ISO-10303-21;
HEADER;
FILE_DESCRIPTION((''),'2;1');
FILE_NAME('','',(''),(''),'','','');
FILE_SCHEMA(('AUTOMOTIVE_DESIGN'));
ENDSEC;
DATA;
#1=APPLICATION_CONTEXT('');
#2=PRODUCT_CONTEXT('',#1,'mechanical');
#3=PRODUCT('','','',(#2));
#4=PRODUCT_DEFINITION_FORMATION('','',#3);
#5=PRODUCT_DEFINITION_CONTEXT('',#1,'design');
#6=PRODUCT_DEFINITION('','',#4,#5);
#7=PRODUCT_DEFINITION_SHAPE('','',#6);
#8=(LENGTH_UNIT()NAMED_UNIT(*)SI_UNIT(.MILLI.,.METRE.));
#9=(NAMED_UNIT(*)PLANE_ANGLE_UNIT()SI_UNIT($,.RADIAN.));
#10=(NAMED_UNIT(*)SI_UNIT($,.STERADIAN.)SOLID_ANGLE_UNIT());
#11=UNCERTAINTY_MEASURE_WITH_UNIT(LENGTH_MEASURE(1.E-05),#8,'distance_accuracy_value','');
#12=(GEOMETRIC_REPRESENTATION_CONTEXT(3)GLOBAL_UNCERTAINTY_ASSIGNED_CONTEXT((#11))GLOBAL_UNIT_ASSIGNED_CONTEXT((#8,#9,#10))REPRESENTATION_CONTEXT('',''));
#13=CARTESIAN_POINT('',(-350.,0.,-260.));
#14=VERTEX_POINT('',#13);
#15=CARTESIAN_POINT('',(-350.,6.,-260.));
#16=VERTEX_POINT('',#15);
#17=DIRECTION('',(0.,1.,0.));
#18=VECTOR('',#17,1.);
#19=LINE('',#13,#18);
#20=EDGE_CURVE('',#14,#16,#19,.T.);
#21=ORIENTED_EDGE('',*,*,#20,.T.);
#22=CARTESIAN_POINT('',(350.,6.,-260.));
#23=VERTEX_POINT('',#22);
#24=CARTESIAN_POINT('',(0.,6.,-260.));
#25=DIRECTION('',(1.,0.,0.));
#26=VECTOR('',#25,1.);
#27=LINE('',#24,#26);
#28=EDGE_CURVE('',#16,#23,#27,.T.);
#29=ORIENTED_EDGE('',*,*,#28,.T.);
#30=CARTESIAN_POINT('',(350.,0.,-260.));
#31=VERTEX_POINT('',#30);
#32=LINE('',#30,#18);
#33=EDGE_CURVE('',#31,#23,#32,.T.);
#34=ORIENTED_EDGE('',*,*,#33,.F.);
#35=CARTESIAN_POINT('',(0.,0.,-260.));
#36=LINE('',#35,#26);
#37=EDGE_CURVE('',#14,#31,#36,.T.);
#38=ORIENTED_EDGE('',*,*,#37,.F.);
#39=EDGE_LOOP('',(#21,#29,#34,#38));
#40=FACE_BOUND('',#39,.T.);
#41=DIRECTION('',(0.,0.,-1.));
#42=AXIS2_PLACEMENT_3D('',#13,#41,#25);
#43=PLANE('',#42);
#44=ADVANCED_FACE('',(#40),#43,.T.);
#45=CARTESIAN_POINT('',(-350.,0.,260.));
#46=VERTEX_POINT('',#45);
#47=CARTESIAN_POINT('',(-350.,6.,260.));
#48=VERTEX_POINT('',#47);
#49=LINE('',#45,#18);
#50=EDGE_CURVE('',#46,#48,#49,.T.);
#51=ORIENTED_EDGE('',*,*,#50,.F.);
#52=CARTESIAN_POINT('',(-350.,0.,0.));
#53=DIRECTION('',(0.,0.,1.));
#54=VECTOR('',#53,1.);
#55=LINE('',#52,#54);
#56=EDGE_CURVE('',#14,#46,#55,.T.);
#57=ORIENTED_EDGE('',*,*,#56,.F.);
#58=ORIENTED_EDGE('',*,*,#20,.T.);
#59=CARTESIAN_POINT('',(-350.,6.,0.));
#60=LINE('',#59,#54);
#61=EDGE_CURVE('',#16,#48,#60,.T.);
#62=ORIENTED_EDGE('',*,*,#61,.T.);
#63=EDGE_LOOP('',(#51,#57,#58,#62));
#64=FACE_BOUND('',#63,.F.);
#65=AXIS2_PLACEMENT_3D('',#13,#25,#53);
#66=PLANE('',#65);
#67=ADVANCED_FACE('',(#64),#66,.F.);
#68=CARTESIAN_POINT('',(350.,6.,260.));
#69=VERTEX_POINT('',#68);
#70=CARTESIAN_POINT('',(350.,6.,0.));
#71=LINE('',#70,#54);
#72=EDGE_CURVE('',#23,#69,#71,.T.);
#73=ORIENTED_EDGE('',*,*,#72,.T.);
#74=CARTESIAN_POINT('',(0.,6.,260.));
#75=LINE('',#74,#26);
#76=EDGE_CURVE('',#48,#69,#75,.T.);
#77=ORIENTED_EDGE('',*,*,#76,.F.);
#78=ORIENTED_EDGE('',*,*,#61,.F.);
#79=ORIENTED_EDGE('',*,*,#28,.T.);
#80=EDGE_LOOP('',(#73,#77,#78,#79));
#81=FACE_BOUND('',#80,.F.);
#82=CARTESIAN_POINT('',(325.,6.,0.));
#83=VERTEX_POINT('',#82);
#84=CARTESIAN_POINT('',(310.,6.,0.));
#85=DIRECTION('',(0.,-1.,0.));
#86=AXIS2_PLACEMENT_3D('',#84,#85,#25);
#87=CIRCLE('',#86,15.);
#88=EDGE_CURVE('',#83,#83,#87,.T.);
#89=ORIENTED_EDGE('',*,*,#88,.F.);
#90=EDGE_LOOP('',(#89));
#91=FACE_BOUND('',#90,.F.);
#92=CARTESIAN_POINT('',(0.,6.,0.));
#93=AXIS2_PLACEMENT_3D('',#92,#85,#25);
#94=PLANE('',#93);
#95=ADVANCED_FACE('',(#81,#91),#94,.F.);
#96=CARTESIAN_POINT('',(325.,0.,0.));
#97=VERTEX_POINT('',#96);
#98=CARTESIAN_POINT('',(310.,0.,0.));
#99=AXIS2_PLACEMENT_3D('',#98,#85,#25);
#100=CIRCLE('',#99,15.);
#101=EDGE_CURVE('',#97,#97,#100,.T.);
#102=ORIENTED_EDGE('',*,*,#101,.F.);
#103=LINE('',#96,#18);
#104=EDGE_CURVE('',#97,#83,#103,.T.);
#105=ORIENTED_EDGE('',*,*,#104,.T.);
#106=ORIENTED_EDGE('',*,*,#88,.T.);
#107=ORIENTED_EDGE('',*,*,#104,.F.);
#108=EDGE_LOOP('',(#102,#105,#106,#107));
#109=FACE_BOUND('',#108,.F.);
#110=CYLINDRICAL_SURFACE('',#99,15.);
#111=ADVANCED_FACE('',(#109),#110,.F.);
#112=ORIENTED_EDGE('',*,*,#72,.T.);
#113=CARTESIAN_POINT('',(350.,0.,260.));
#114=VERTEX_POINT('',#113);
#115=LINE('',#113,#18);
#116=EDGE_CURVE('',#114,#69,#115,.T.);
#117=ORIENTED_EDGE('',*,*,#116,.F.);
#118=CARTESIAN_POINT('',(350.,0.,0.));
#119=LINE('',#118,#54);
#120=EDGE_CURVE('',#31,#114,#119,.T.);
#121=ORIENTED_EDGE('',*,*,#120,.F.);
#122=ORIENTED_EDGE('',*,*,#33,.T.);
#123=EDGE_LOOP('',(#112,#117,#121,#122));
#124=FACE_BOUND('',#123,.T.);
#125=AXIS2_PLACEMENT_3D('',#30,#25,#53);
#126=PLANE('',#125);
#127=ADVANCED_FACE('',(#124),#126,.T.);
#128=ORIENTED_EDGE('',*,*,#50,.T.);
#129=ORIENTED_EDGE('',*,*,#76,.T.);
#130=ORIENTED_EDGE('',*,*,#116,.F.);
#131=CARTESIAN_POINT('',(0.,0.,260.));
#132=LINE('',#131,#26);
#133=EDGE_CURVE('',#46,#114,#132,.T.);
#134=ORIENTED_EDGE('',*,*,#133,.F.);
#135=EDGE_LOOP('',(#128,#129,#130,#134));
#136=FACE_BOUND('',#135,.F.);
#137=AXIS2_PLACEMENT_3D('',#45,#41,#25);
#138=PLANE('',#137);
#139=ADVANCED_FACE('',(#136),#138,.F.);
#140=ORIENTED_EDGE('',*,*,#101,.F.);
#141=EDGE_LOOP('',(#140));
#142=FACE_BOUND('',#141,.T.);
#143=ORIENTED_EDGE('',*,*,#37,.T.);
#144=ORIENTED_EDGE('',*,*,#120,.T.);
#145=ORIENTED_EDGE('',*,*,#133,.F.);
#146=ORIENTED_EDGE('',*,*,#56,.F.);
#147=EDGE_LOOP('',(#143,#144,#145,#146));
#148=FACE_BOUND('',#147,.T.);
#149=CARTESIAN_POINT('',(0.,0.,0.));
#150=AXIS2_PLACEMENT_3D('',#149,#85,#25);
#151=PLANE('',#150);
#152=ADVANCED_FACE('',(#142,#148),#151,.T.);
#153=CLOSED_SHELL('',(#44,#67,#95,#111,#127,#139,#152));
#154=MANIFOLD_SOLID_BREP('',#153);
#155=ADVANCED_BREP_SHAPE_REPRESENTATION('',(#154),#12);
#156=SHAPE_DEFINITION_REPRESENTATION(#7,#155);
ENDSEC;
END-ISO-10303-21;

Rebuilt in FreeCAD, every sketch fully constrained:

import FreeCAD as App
import Part
import Sketcher
from FreeCAD import Vector

doc = App.newDocument("Part")
body = doc.addObject("PartDesign::Body", "Body")

sketch1 = body.newObject("Sketcher::SketchObject", "Sketch")
sketch1.AttachmentSupport = (doc.getObject("XZ_Plane"), [""])
sketch1.MapMode = "FlatFace"
sketch1.addGeometry([
    Part.LineSegment(Vector(-350, 260, 0), Vector(-350, -260, 0)),
    Part.LineSegment(Vector(-350, -260, 0), Vector(350, -260, 0)),
    Part.LineSegment(Vector(350, -260, 0), Vector(350, 260, 0)),
    Part.LineSegment(Vector(350, 260, 0), Vector(-350, 260, 0)),
    Part.Circle(Vector(310, 0, 0), Vector(0, 0, 1), 15),
], False)
sketch1.addConstraint([
    Sketcher.Constraint("Coincident", 0, 2, 1, 1),
    Sketcher.Constraint("Coincident", 1, 2, 2, 1),
    Sketcher.Constraint("Coincident", 2, 2, 3, 1),
    Sketcher.Constraint("Coincident", 3, 2, 0, 1),
    Sketcher.Constraint("Vertical", 0),
    Sketcher.Constraint("Horizontal", 1),
    Sketcher.Constraint("Vertical", 2),
    Sketcher.Constraint("Horizontal", 3),
    Sketcher.Constraint("Symmetric", 0, 2, 2, 2, -1, 1),
    Sketcher.Constraint("PointOnObject", 4, 3, -1),
    Sketcher.Constraint("Diameter", 4, 30.0),
    Sketcher.Constraint("DistanceX", 1, 1, 1, 2, 700.0),
    Sketcher.Constraint("DistanceY", 0, 2, 0, 1, 520.0),
    Sketcher.Constraint("DistanceX", -1, 1, 4, 3, 310.0),
])
pad1 = body.newObject("PartDesign::Pad", "Pad")
pad1.Profile = sketch1
pad1.Length = 6
pad1.Reversed = True

doc.recompute()
